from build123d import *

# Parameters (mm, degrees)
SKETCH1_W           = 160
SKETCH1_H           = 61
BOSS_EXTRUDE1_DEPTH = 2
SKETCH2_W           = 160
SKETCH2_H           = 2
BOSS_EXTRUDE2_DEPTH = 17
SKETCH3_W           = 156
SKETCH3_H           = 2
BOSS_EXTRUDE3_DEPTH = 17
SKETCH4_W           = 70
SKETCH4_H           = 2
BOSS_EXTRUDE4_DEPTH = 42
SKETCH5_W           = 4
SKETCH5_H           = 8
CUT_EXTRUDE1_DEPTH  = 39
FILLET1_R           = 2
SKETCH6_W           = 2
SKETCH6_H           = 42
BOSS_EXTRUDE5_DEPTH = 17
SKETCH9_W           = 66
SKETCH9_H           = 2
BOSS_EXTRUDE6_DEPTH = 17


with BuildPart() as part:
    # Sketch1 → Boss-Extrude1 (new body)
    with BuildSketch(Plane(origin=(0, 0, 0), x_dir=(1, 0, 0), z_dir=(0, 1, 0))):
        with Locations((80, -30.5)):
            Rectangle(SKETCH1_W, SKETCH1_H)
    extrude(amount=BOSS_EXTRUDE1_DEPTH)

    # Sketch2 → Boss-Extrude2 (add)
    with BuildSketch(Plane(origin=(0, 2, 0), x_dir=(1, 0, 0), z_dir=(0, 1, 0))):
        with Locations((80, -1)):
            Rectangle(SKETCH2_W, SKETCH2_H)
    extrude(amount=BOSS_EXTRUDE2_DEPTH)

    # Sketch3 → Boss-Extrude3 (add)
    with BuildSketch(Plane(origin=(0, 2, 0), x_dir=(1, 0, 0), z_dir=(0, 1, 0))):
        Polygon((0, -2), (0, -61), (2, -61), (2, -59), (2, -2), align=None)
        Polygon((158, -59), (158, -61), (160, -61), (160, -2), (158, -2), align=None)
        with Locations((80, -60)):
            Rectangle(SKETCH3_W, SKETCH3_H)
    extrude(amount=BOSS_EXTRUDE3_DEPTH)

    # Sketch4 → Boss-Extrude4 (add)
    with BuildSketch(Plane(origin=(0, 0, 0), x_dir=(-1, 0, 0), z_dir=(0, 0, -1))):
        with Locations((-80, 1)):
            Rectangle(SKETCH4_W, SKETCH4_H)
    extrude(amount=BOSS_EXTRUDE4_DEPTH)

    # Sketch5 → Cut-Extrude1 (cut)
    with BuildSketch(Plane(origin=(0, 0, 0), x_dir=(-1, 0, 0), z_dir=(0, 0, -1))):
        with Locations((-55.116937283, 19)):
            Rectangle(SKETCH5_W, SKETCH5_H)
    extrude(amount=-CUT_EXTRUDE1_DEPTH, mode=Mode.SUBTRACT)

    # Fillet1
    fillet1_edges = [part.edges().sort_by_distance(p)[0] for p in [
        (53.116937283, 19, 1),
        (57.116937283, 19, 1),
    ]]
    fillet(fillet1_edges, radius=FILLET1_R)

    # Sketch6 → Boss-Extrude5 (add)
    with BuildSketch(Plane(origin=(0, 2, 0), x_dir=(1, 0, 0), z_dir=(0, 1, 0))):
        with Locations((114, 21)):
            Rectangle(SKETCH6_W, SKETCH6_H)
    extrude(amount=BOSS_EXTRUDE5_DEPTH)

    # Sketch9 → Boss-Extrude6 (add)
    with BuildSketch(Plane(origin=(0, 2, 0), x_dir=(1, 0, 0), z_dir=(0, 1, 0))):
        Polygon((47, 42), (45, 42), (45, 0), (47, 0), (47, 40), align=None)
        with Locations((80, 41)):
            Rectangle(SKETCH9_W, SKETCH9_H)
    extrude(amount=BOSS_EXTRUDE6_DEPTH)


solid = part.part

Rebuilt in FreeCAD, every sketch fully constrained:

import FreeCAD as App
import Part
import Sketcher


def edges_at(feature, points):
    """Names of the edges that pass closest to the given points."""
    edges = feature.Shape.Edges
    near = lambda p: min(range(len(edges)), key=lambda i: edges[i].distToShape(Part.Vertex(*p))[0])
    return sorted({f"Edge{near(p) + 1}" for p in points})

doc = App.newDocument("Part")
body = doc.addObject("PartDesign::Body", "Body")

sketch1 = doc.addObject("Sketcher::SketchObject", "Sketch")
body.addObject(sketch1)
sketch1.AttachmentSupport = (doc.XZ_Plane, [""])
sketch1.MapMode = "FlatFace"
sketch1.addGeometry([
    Part.LineSegment(App.Vector(0, 0, 0), App.Vector(0, 61, 0)),
    Part.LineSegment(App.Vector(0, 61, 0), App.Vector(160, 61, 0)),
    Part.LineSegment(App.Vector(160, 61, 0), App.Vector(160, 0, 0)),
    Part.LineSegment(App.Vector(160, 0, 0), App.Vector(0, 0, 0)),
], False)
sketch1.addConstraint([
    Sketcher.Constraint("Coincident", 0, 2, 1, 1),
    Sketcher.Constraint("Coincident", 1, 2, 2, 1),
    Sketcher.Constraint("Coincident", 2, 2, 3, 1),
    Sketcher.Constraint("Coincident", 3, 2, 0, 1),
    Sketcher.Constraint("Vertical", 0),
    Sketcher.Constraint("Horizontal", 1),
    Sketcher.Constraint("Vertical", 2),
    Sketcher.Constraint("Horizontal", 3),
    Sketcher.Constraint("Coincident", 3, 2, -1, 1),
    Sketcher.Constraint("DistanceX", 1, 1, 1, 2, 160.0),
    Sketcher.Constraint("DistanceY", 0, 1, 0, 2, 61.0),
])
pad1 = doc.addObject("PartDesign::Pad", "Pad")
body.addObject(pad1)
pad1.Profile = sketch1
pad1.Length = 2
pad1.Reversed = True

sketch2 = doc.addObject("Sketcher::SketchObject", "Sketch001")
body.addObject(sketch2)
sketch2.AttachmentSupport = (doc.XZ_Plane, [""])
sketch2.MapMode = "FlatFace"
sketch2.AttachmentOffset = App.Placement(App.Vector(0, 0, -2), App.Rotation())
sketch2.addGeometry([
    Part.LineSegment(App.Vector(0, 0, 0), App.Vector(0, 2, 0)),
    Part.LineSegment(App.Vector(0, 2, 0), App.Vector(160, 2, 0)),
    Part.LineSegment(App.Vector(160, 2, 0), App.Vector(160, 0, 0)),
    Part.LineSegment(App.Vector(160, 0, 0), App.Vector(0, 0, 0)),
], False)
sketch2.addConstraint([
    Sketcher.Constraint("Coincident", 0, 2, 1, 1),
    Sketcher.Constraint("Coincident", 1, 2, 2, 1),
    Sketcher.Constraint("Coincident", 2, 2, 3, 1),
    Sketcher.Constraint("Coincident", 3, 2, 0, 1),
    Sketcher.Constraint("Vertical", 0),
    Sketcher.Constraint("Horizontal", 1),
    Sketcher.Constraint("Vertical", 2),
    Sketcher.Constraint("Horizontal", 3),
    Sketcher.Constraint("Coincident", 3, 2, -1, 1),
    Sketcher.Constraint("DistanceX", 1, 1, 1, 2, 160.0),
    Sketcher.Constraint("DistanceY", 0, 1, 0, 2, 2.0),
])
pad2 = doc.addObject("PartDesign::Pad", "Pad001")
body.addObject(pad2)
pad2.Profile = sketch2
pad2.Length = 17
pad2.Reversed = True

sketch3 = doc.addObject("Sketcher::SketchObject", "Sketch002")
body.addObject(sketch3)
sketch3.AttachmentSupport = (doc.XZ_Plane, [""])
sketch3.MapMode = "FlatFace"
sketch3.AttachmentOffset = App.Placement(App.Vector(0, 0, -2), App.Rotation())
sketch3.addGeometry([
    Part.LineSegment(App.Vector(0, 2, 0), App.Vector(0, 61, 0)),
    Part.LineSegment(App.Vector(0, 61, 0), App.Vector(160, 61, 0)),
    Part.LineSegment(App.Vector(160, 61, 0), App.Vector(160, 2, 0)),
    Part.LineSegment(App.Vector(160, 2, 0), App.Vector(158, 2, 0)),
    Part.LineSegment(App.Vector(158, 2, 0), App.Vector(158, 59, 0)),
    Part.LineSegment(App.Vector(158, 59, 0), App.Vector(2, 59, 0)),
    Part.LineSegment(App.Vector(2, 59, 0), App.Vector(2, 2, 0)),
    Part.LineSegment(App.Vector(2, 2, 0), App.Vector(0, 2, 0)),
], False)
sketch3.addConstraint([
    Sketcher.Constraint("Coincident", 0, 2, 1, 1),
    Sketcher.Constraint("Coincident", 1, 2, 2, 1),
    Sketcher.Constraint("Coincident", 2, 2, 3, 1),
    Sketcher.Constraint("Coincident", 3, 2, 4, 1),
    Sketcher.Constraint("Coincident", 4, 2, 5, 1),
    Sketcher.Constraint("Coincident", 5, 2, 6, 1),
    Sketcher.Constraint("Coincident", 6, 2, 7, 1),
    Sketcher.Constraint("Coincident", 7, 2, 0, 1),
    Sketcher.Constraint("Vertical", 0),
    Sketcher.Constraint("Horizontal", 1),
    Sketcher.Constraint("Vertical", 2),
    Sketcher.Constraint("Horizontal", 3),
    Sketcher.Constraint("Vertical", 4),
    Sketcher.Constraint("Horizontal", 5),
    Sketcher.Constraint("Vertical", 6),
    Sketcher.Constraint("Horizontal", 7),
    Sketcher.Constraint("PointOnObject", 0, 2, -2),
    Sketcher.Constraint("Horizontal", 3, 2, 6, 2),
    Sketcher.Constraint("Equal", 3, 7),
    Sketcher.Constraint("DistanceX", 1, 1, 1, 2, 160.0),
    Sketcher.Constraint("DistanceX", 3, 2, 3, 1, 2.0),
    Sketcher.Constraint("DistanceY", 0, 1, 0, 2, 59.0),
    Sketcher.Constraint("DistanceY", 4, 1, 4, 2, 57.0),
    Sketcher.Constraint("DistanceY", -1, 1, 0, 2, 61.0),
])
pad3 = doc.addObject("PartDesign::Pad", "Pad002")
body.addObject(pad3)
pad3.Profile = sketch3
pad3.Length = 17
pad3.Reversed = True

sketch4 = doc.addObject("Sketcher::SketchObject", "Sketch003")
body.addObject(sketch4)
sketch4.AttachmentSupport = (doc.XY_Plane, [""])
sketch4.MapMode = "FlatFace"
sketch4.addGeometry([
    Part.LineSegment(App.Vector(115, 2, 0), App.Vector(115, 0, 0)),
    Part.LineSegment(App.Vector(115, 0, 0), App.Vector(45, 0, 0)),
    Part.LineSegment(App.Vector(45, 0, 0), App.Vector(45, 2, 0)),
    Part.LineSegment(App.Vector(45, 2, 0), App.Vector(115, 2, 0)),
], False)
sketch4.addConstraint([
    Sketcher.Constraint("Coincident", 0, 2, 1, 1),
    Sketcher.Constraint("Coincident", 1, 2, 2, 1),
    Sketcher.Constraint("Coincident", 2, 2, 3, 1),
    Sketcher.Constraint("Coincident", 3, 2, 0, 1),
    Sketcher.Constraint("Vertical", 0),
    Sketcher.Constraint("Horizontal", 1),
    Sketcher.Constraint("Vertical", 2),
    Sketcher.Constraint("Horizontal", 3),
    Sketcher.Constraint("PointOnObject", 0, 2, -1),
    Sketcher.Constraint("DistanceX", 1, 2, 1, 1, 70.0),
    Sketcher.Constraint("DistanceY", 0, 2, 0, 1, 2.0),
    Sketcher.Constraint("DistanceX", -1, 1, 0, 2, 115.0),
])
pad4 = doc.addObject("PartDesign::Pad", "Pad003")
body.addObject(pad4)
pad4.Profile = sketch4
pad4.Length = 42
pad4.Reversed = True

sketch5 = doc.addObject("Sketcher::SketchObject", "Sketch004")
body.addObject(sketch5)
sketch5.AttachmentSupport = (doc.XY_Plane, [""])
sketch5.MapMode = "FlatFace"
sketch5.addGeometry([
    Part.LineSegment(App.Vector(57.1, 23, 0), App.Vector(57.1, 15, 0)),
    Part.LineSegment(App.Vector(57.1, 15, 0), App.Vector(53.1, 15, 0)),
    Part.LineSegment(App.Vector(53.1, 15, 0), App.Vector(53.1, 23, 0)),
    Part.LineSegment(App.Vector(53.1, 23, 0), App.Vector(57.1, 23, 0)),
], False)
sketch5.addConstraint([
    Sketcher.Constraint("Coincident", 0, 2, 1, 1),
    Sketcher.Constraint("Coincident", 1, 2, 2, 1),
    Sketcher.Constraint("Coincident", 2, 2, 3, 1),
    Sketcher.Constraint("Coincident", 3, 2, 0, 1),
    Sketcher.Constraint("Vertical", 0),
    Sketcher.Constraint("Horizontal", 1),
    Sketcher.Constraint("Vertical", 2),
    Sketcher.Constraint("Horizontal", 3),
    Sketcher.Constraint("DistanceX", 1, 2, 1, 1, 4.0),
    Sketcher.Constraint("DistanceY", 0, 2, 0, 1, 8.0),
    Sketcher.Constraint("DistanceY", -1, 1, 0, 2, 15.0),
    Sketcher.Constraint("DistanceX", -1, 1, 0, 2, 57.116937),
])
pocket1 = doc.addObject("PartDesign::Pocket", "Pocket")
body.addObject(pocket1)
pocket1.Profile = sketch5
pocket1.Length = 39
pocket1.Reversed = True
doc.recompute()

fillet = doc.addObject("PartDesign::Fillet", "Fillet")
body.addObject(fillet)
fillet.Base = (pocket1, edges_at(pocket1, [(53.117, 19, 1), (57.117, 19, 1)]))
fillet.Radius = 2

sketch6 = doc.addObject("Sketcher::SketchObject", "Sketch005")
body.addObject(sketch6)
sketch6.AttachmentSupport = (doc.XZ_Plane, [""])
sketch6.MapMode = "FlatFace"
sketch6.AttachmentOffset = App.Placement(App.Vector(0, 0, -2), App.Rotation())
sketch6.addGeometry([
    Part.LineSegment(App.Vector(113, -42, 0), App.Vector(113, 0, 0)),
    Part.LineSegment(App.Vector(113, 0, 0), App.Vector(115, 0, 0)),
    Part.LineSegment(App.Vector(115, 0, 0), App.Vector(115, -42, 0)),
    Part.LineSegment(App.Vector(115, -42, 0), App.Vector(113, -42, 0)),
], False)
sketch6.addConstraint([
    Sketcher.Constraint("Coincident", 0, 2, 1, 1),
    Sketcher.Constraint("Coincident", 1, 2, 2, 1),
    Sketcher.Constraint("Coincident", 2, 2, 3, 1),
    Sketcher.Constraint("Coincident", 3, 2, 0, 1),
    Sketcher.Constraint("Vertical", 0),
    Sketcher.Constraint("Horizontal", 1),
    Sketcher.Constraint("Vertical", 2),
    Sketcher.Constraint("Horizontal", 3),
    Sketcher.Constraint("PointOnObject", 0, 2, -1),
    Sketcher.Constraint("DistanceX", 1, 1, 1, 2, 2.0),
    Sketcher.Constraint("DistanceY", 0, 1, 0, 2, 42.0),
    Sketcher.Constraint("DistanceX", -1, 1, 0, 2, 113.0),
])
pad5 = doc.addObject("PartDesign::Pad", "Pad004")
body.addObject(pad5)
pad5.Profile = sketch6
pad5.Length = 17
pad5.Reversed = True

sketch7 = doc.addObject("Sketcher::SketchObject", "Sketch006")
body.addObject(sketch7)
sketch7.AttachmentSupport = (doc.XZ_Plane, [""])
sketch7.MapMode = "FlatFace"
sketch7.AttachmentOffset = App.Placement(App.Vector(0, 0, -2), App.Rotation())
sketch7.addGeometry([
    Part.LineSegment(App.Vector(45, -42, 0), App.Vector(45, 0, 0)),
    Part.LineSegment(App.Vector(45, 0, 0), App.Vector(47, 0, 0)),
    Part.LineSegment(App.Vector(47, 0, 0), App.Vector(47, -40, 0)),
    Part.LineSegment(App.Vector(47, -40, 0), App.Vector(113, -40, 0)),
    Part.LineSegment(App.Vector(113, -40, 0), App.Vector(113, -42, 0)),
    Part.LineSegment(App.Vector(113, -42, 0), App.Vector(45, -42, 0)),
], False)
sketch7.addConstraint([
    Sketcher.Constraint("Coincident", 0, 2, 1, 1),
    Sketcher.Constraint("Coincident", 1, 2, 2, 1),
    Sketcher.Constraint("Coincident", 2, 2, 3, 1),
    Sketcher.Constraint("Coincident", 3, 2, 4, 1),
    Sketcher.Constraint("Coincident", 4, 2, 5, 1),
    Sketcher.Constraint("Coincident", 5, 2, 0, 1),
    Sketcher.Constraint("Vertical", 0),
    Sketcher.Constraint("Horizontal", 1),
    Sketcher.Constraint("Vertical", 2),
    Sketcher.Constraint("Horizontal", 3),
    Sketcher.Constraint("Vertical", 4),
    Sketcher.Constraint("Horizontal", 5),
    Sketcher.Constraint("PointOnObject", 0, 2, -1),
    Sketcher.Constraint("Equal", 1, 4),
    Sketcher.Constraint("DistanceX", 1, 1, 1, 2, 2.0),
    Sketcher.Constraint("DistanceX", 3, 1, 3, 2, 66.0),
    Sketcher.Constraint("DistanceY", 0, 1, 0, 2, 42.0),
    Sketcher.Constraint("DistanceX", -1, 1, 0, 2, 45.0),
])
pad6 = doc.addObject("PartDesign::Pad", "Pad005")
body.addObject(pad6)
pad6.Profile = sketch7
pad6.Length = 17
pad6.Reversed = True

doc.recompute()
